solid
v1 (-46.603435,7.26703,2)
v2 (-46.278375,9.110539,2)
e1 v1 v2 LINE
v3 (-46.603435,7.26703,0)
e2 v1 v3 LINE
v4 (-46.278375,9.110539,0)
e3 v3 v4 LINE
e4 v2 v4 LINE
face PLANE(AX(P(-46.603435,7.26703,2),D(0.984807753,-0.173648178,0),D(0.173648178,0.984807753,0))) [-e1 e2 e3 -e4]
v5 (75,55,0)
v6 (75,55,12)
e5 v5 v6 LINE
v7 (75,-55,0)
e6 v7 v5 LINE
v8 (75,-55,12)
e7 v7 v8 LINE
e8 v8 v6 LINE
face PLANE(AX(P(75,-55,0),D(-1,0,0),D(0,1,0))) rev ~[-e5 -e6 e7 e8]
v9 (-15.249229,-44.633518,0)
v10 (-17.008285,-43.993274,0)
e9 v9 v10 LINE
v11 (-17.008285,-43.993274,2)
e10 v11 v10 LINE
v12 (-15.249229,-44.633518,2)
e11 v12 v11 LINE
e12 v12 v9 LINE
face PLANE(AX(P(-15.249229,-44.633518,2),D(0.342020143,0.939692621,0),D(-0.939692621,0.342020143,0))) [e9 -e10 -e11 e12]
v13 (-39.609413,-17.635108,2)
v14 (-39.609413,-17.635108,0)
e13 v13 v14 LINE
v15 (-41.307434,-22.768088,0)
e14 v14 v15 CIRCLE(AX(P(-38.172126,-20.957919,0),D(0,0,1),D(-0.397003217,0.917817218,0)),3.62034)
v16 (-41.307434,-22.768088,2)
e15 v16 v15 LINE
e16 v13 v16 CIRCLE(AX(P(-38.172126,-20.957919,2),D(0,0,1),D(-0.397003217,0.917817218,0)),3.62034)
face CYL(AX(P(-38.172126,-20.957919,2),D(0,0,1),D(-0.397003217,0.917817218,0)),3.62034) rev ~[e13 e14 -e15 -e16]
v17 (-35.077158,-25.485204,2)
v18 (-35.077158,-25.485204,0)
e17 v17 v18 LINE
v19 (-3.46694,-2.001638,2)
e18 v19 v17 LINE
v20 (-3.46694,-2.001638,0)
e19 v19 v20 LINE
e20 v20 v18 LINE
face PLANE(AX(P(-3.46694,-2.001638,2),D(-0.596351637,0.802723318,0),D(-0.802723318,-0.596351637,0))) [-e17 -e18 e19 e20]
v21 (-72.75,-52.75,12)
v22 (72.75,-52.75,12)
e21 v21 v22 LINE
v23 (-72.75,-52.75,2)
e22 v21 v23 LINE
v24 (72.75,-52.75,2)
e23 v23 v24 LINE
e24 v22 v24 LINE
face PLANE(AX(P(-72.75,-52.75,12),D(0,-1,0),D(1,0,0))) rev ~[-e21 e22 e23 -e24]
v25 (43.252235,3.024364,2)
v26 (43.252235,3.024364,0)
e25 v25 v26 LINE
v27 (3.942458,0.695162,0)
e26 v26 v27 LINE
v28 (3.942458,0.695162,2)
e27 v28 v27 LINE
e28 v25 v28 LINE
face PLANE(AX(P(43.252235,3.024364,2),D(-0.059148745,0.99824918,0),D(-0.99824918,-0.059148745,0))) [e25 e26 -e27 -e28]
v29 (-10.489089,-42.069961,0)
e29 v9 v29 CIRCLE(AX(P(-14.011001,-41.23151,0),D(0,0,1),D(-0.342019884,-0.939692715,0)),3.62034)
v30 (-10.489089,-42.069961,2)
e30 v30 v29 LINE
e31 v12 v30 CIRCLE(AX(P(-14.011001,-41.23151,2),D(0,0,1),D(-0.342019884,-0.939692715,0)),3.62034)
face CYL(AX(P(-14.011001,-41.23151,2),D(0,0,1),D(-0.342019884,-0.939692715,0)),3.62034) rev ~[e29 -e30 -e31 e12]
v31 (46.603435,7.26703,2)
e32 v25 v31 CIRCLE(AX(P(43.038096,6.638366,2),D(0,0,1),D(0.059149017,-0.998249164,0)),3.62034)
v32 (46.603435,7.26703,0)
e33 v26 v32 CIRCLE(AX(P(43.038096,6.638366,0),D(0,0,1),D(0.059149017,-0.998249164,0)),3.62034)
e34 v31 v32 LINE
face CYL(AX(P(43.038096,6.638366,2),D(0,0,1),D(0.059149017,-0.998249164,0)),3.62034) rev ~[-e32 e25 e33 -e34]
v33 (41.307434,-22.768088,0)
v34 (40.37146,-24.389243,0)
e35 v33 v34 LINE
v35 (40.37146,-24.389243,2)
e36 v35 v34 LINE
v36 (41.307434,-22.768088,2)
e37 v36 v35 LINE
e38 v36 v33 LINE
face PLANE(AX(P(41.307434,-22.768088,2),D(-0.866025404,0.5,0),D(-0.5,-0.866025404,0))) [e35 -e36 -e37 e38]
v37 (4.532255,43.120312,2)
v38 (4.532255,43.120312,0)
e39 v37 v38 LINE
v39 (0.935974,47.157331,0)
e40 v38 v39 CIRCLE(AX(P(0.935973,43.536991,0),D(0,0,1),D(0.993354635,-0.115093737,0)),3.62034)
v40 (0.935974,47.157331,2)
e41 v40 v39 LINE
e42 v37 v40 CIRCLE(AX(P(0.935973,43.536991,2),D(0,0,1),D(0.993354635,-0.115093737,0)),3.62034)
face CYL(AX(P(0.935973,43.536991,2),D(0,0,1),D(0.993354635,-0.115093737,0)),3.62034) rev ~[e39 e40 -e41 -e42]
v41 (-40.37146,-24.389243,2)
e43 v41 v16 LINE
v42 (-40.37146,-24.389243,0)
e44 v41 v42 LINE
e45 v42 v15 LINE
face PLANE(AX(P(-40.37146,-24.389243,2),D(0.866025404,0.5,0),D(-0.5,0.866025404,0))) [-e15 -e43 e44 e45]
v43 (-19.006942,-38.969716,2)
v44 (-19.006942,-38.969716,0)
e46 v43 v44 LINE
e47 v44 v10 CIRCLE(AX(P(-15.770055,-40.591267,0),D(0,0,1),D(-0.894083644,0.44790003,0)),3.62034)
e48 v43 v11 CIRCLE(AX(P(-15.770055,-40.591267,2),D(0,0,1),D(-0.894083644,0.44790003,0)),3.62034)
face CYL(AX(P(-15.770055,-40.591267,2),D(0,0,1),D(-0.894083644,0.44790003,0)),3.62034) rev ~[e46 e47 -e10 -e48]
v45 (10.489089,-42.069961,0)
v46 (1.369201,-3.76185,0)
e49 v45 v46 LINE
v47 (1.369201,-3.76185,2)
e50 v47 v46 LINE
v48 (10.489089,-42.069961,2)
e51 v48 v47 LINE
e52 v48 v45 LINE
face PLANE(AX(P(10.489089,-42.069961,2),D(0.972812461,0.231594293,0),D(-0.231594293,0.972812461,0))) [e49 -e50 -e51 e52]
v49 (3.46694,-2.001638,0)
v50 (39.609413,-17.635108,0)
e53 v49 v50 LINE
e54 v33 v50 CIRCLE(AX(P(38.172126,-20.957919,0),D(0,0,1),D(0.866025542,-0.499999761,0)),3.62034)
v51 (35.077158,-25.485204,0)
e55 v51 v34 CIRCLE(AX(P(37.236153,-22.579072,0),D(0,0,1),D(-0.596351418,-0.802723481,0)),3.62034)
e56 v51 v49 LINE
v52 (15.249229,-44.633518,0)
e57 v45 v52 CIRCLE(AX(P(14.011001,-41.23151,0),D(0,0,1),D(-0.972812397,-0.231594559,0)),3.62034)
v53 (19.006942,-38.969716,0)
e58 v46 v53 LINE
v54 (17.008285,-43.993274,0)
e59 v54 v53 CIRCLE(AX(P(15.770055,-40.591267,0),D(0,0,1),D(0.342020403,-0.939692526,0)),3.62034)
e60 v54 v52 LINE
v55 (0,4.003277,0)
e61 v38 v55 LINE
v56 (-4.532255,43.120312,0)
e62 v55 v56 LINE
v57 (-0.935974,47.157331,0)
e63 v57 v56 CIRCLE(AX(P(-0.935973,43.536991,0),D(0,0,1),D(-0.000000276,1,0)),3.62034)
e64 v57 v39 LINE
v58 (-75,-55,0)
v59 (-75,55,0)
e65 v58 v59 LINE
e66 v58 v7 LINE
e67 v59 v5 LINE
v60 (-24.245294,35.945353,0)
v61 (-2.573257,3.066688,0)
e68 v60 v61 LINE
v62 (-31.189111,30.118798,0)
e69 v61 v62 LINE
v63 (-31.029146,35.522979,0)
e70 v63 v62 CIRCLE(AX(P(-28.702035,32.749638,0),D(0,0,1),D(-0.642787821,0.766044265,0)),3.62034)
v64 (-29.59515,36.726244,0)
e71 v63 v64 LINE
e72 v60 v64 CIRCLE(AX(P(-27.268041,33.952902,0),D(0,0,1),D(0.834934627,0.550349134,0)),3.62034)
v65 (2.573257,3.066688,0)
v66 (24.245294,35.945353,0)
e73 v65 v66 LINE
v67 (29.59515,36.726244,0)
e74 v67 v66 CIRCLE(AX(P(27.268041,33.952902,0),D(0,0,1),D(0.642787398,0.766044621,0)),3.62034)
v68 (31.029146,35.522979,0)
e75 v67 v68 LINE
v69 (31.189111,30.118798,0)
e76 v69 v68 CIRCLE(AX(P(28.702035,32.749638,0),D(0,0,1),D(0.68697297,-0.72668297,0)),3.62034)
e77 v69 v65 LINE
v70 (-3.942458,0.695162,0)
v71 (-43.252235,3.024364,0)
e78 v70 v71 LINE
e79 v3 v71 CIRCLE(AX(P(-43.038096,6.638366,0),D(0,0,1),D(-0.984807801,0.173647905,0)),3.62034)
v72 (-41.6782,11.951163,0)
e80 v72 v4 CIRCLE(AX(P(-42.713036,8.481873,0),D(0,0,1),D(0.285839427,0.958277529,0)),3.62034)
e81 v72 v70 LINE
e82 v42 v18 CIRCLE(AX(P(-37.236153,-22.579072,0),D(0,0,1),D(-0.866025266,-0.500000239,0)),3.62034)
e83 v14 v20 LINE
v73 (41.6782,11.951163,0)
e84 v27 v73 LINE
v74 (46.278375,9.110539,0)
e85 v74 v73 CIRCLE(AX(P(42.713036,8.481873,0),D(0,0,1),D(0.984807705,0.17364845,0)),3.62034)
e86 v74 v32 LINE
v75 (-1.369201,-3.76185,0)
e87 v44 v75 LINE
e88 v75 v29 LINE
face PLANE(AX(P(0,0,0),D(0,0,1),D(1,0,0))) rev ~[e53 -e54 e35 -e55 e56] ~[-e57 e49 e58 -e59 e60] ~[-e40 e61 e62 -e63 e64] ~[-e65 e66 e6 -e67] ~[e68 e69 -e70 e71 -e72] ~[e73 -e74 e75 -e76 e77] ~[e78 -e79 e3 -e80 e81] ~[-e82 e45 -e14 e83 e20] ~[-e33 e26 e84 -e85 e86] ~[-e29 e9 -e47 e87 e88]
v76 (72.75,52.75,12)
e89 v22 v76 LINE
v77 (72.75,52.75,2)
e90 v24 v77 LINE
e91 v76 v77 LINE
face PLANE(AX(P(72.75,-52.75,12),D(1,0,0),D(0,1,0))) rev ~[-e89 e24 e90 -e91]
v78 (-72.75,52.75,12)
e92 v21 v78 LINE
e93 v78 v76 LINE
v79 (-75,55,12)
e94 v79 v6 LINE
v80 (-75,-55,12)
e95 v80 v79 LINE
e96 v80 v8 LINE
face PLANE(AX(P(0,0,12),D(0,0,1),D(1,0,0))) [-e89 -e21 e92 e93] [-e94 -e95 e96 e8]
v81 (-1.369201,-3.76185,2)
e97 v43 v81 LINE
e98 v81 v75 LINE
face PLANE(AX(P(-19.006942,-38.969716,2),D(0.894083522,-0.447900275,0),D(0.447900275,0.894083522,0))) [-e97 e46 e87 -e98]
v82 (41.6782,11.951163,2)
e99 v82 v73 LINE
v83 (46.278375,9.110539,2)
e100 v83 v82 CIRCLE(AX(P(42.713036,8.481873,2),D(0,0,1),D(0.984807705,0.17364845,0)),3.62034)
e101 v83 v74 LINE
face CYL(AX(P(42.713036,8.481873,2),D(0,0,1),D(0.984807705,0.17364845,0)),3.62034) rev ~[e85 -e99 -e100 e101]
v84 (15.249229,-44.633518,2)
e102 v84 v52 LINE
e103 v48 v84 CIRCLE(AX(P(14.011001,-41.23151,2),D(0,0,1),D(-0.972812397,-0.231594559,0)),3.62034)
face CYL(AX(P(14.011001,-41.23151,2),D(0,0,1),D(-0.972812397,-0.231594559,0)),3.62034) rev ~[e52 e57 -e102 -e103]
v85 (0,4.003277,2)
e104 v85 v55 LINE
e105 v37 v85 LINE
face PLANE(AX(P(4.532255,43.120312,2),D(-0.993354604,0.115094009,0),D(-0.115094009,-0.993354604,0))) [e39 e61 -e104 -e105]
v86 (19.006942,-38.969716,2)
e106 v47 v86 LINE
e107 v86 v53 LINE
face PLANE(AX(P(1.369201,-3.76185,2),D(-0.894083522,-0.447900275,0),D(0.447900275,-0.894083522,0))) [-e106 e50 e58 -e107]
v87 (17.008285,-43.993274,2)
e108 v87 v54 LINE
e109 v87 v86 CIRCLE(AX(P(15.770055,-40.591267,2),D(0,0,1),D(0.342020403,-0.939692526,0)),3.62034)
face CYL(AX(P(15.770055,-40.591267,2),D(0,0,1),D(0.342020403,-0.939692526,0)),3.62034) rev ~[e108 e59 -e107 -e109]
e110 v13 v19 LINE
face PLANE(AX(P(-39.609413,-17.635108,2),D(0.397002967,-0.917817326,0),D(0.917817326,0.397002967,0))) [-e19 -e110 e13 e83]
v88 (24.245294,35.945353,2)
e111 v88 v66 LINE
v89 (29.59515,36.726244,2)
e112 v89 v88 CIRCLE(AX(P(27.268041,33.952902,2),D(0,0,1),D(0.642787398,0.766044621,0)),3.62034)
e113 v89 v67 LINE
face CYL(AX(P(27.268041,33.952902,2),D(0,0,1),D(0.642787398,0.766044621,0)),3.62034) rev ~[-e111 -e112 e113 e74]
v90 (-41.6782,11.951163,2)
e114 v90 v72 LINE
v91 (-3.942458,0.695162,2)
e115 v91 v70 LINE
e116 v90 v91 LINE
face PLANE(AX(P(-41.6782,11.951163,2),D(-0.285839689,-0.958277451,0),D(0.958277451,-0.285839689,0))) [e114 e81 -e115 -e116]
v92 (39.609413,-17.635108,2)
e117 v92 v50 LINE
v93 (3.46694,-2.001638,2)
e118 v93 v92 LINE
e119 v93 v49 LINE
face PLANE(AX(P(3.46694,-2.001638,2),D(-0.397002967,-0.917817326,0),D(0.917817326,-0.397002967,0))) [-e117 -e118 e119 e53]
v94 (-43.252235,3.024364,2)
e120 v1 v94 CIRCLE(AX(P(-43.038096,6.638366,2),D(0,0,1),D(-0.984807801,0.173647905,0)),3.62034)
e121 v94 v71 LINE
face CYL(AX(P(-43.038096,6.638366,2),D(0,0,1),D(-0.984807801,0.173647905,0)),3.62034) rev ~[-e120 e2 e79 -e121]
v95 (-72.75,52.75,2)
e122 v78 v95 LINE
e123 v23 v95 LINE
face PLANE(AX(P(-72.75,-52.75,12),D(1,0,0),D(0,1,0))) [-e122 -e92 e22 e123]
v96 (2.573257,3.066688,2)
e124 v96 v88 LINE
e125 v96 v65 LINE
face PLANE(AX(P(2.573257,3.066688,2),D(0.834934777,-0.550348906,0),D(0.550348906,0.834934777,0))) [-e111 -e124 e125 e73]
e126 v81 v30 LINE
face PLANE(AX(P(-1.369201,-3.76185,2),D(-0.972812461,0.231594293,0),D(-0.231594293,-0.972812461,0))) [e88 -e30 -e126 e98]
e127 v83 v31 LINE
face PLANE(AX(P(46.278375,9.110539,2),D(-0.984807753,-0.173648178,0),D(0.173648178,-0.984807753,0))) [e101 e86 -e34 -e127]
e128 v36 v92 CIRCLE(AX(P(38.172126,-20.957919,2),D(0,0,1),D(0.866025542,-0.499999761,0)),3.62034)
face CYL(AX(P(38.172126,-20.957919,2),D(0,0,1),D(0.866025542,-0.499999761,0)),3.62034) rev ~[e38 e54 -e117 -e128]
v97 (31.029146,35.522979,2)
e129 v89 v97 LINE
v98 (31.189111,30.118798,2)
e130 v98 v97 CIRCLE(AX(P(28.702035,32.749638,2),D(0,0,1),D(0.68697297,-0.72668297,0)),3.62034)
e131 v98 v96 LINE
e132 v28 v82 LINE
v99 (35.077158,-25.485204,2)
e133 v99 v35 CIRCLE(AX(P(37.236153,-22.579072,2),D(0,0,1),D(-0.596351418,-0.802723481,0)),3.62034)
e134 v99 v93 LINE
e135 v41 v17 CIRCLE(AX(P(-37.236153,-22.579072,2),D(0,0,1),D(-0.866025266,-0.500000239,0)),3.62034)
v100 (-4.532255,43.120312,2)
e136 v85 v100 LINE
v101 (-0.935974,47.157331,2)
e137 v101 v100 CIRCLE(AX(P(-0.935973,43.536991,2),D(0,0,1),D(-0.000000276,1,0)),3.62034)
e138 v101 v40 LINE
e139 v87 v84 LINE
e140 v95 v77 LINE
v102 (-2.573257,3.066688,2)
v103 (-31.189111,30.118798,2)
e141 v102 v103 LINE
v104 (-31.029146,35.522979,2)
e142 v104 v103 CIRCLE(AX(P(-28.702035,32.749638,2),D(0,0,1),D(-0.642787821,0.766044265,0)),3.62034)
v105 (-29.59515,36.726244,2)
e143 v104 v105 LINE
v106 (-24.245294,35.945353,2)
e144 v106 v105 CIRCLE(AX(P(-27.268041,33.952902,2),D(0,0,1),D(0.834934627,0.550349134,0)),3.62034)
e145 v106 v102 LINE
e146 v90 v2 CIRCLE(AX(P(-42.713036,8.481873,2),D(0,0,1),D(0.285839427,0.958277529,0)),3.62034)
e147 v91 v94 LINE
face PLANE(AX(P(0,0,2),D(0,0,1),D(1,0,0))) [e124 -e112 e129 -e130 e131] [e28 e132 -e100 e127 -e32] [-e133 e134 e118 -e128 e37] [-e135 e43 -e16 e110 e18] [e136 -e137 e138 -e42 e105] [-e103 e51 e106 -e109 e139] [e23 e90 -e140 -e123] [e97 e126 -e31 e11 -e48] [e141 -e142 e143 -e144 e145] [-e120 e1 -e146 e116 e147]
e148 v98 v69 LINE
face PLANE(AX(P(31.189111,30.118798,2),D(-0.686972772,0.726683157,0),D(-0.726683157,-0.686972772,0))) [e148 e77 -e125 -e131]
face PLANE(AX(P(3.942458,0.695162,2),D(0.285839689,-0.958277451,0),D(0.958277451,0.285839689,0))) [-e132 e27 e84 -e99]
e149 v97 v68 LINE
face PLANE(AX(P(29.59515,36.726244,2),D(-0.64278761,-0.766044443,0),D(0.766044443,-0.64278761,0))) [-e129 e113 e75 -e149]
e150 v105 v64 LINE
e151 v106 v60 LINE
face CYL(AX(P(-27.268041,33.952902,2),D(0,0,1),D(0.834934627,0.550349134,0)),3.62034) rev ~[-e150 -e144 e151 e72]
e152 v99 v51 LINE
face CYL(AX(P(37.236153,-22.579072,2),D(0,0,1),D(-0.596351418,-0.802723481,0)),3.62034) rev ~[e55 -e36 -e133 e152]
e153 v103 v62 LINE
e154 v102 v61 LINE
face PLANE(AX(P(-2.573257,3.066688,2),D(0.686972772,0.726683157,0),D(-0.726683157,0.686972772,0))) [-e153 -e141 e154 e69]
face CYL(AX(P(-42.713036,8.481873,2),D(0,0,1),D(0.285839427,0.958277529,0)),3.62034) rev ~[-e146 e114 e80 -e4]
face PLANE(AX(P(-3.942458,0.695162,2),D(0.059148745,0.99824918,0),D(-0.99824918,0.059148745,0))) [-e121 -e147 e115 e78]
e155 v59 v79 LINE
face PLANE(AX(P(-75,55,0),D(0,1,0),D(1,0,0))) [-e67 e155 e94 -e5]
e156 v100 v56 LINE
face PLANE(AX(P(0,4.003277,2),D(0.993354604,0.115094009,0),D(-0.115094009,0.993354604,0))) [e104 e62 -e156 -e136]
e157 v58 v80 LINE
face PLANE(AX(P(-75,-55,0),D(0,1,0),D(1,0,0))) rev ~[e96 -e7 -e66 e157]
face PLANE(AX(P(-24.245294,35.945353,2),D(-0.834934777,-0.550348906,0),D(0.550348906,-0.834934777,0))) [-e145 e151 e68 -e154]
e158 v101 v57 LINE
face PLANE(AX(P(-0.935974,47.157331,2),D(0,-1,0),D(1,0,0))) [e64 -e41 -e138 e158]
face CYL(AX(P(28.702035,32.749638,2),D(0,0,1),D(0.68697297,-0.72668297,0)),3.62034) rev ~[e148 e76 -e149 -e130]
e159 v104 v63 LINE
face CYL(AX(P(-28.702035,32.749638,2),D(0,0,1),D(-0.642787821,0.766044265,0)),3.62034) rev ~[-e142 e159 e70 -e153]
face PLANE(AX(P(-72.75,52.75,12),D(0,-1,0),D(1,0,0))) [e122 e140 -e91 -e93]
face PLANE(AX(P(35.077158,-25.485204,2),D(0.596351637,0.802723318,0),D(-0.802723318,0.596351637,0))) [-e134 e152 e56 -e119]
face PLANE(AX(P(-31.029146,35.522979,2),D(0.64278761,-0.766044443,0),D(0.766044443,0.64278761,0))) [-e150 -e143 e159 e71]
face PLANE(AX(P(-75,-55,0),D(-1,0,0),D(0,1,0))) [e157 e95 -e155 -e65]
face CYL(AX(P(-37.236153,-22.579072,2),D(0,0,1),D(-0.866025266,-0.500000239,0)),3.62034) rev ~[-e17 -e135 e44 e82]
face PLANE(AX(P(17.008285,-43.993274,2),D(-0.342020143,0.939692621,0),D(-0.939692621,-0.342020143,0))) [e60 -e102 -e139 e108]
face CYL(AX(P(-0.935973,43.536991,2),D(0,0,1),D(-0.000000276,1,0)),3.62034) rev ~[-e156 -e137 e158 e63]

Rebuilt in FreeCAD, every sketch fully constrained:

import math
import FreeCAD as App
import Part
import Sketcher
from FreeCAD import Vector
Q = App.Units.Quantity

doc = App.newDocument("Part")
params = doc.addObject("Spreadsheet::Sheet", "Params")
for row, (alias, value) in enumerate([
    ("sketch1_width", "150 mm"),
    ("sketch1_height", "110 mm"),
    ("pad1_length", "12 mm"),
    ("sketch2_width", "145.5 mm"),
    ("sketch2_height", "105.5 mm"),
    ("pocket1_length", "10 mm"),
    ("pocket2_length", "5 mm"),
], start=1):
    params.set(f"A{row}", alias)
    params.set(f"B{row}", "=" + value)
    params.setAlias(f"B{row}", alias)

body = doc.addObject("PartDesign::Body", "Body")

# Sketch on XY plane
sketch1 = doc.addObject("Sketcher::SketchObject", "Sketch")
body.addObject(sketch1)
sketch1.AttachmentSupport = (doc.XY_Plane, [""])
sketch1.MapMode = "FlatFace"
sketch1.addGeometry(Part.LineSegment(Vector(-75, 55, 0), Vector(-75, -55, 0)), False)
sketch1.addGeometry(Part.LineSegment(Vector(-75, -55, 0), Vector(75, -55, 0)), False)
sketch1.addGeometry(Part.LineSegment(Vector(75, -55, 0), Vector(75, 55, 0)), False)
sketch1.addGeometry(Part.LineSegment(Vector(75, 55, 0), Vector(-75, 55, 0)), False)
sketch1.addConstraint(Sketcher.Constraint("Coincident", 0, 2, 1, 1))
sketch1.addConstraint(Sketcher.Constraint("Coincident", 1, 2, 2, 1))
sketch1.addConstraint(Sketcher.Constraint("Coincident", 2, 2, 3, 1))
sketch1.addConstraint(Sketcher.Constraint("Coincident", 3, 2, 0, 1))
sketch1.addConstraint(Sketcher.Constraint("Vertical", 0))
sketch1.addConstraint(Sketcher.Constraint("Horizontal", 1))
sketch1.addConstraint(Sketcher.Constraint("Vertical", 2))
sketch1.addConstraint(Sketcher.Constraint("Horizontal", 3))
sketch1.addConstraint(Sketcher.Constraint("Symmetric", 0, 2, 2, 2, -1, 1))
sketch1.addConstraint(Sketcher.Constraint("DistanceX", 1, 1, 1, 2, Q("150 mm")))
sketch1.addConstraint(Sketcher.Constraint("DistanceY", 0, 2, 0, 1, Q("110 mm")))
sketch1.setExpression("Constraints[9]", "Params.sketch1_width")
sketch1.setExpression("Constraints[10]", "Params.sketch1_height")
pad1 = doc.addObject("PartDesign::Pad", "Pad")
body.addObject(pad1)
pad1.Profile = sketch1
pad1.setExpression("Length", "Params.pad1_length")

# Sketch on XY plane
sketch2 = doc.addObject("Sketcher::SketchObject", "Sketch001")
body.addObject(sketch2)
sketch2.AttachmentSupport = (doc.XY_Plane, [""])
sketch2.MapMode = "FlatFace"
sketch2.AttachmentOffset = App.Placement(Vector(0, 0, 12), App.Rotation())
sketch2.addGeometry(Part.LineSegment(Vector(-72.75, 52.75, 0), Vector(-72.75, -52.75, 0)), False)
sketch2.addGeometry(Part.LineSegment(Vector(-72.75, -52.75, 0), Vector(72.75, -52.75, 0)), False)
sketch2.addGeometry(Part.LineSegment(Vector(72.75, -52.75, 0), Vector(72.75, 52.75, 0)), False)
sketch2.addGeometry(Part.LineSegment(Vector(72.75, 52.75, 0), Vector(-72.75, 52.75, 0)), False)
sketch2.addConstraint(Sketcher.Constraint("Coincident", 0, 2, 1, 1))
sketch2.addConstraint(Sketcher.Constraint("Coincident", 1, 2, 2, 1))
sketch2.addConstraint(Sketcher.Constraint("Coincident", 2, 2, 3, 1))
sketch2.addConstraint(Sketcher.Constraint("Coincident", 3, 2, 0, 1))
sketch2.addConstraint(Sketcher.Constraint("Vertical", 0))
sketch2.addConstraint(Sketcher.Constraint("Horizontal", 1))
sketch2.addConstraint(Sketcher.Constraint("Vertical", 2))
sketch2.addConstraint(Sketcher.Constraint("Horizontal", 3))
sketch2.addConstraint(Sketcher.Constraint("Symmetric", 0, 2, 2, 2, -1, 1))
sketch2.addConstraint(Sketcher.Constraint("DistanceX", 1, 1, 1, 2, Q("145.5 mm")))
sketch2.addConstraint(Sketcher.Constraint("DistanceY", 0, 2, 0, 1, Q("105.5 mm")))
sketch2.setExpression("Constraints[9]", "Params.sketch2_width")
sketch2.setExpression("Constraints[10]", "Params.sketch2_height")
pocket1 = doc.addObject("PartDesign::Pocket", "Pocket")
body.addObject(pocket1)
pocket1.Profile = sketch2
pocket1.setExpression("Length", "Params.pocket1_length")

# Sketch on XY plane
sketch3 = doc.addObject("Sketcher::SketchObject", "Sketch002")
body.addObject(sketch3)
sketch3.AttachmentSupport = (doc.XY_Plane, [""])
sketch3.MapMode = "FlatFace"
sketch3.AttachmentOffset = App.Placement(Vector(0, 0, 2), App.Rotation())
sketch3.addGeometry(Part.LineSegment(Vector(0.935974, 47.157331, 0), Vector(-0.935974, 47.157331, 0)), False)
sketch3.addGeometry(Part.ArcOfCircle(Part.Circle(Vector(-0.935973, 43.536991, 0), Vector(0, 0, 1), 3.62034), math.radians(90.000016), math.radians(186.609032)), False)
sketch3.addGeometry(Part.LineSegment(Vector(-4.532255, 43.120312, 0), Vector(0, 4.003277, 0)), False)
sketch3.addGeometry(Part.LineSegment(Vector(0, 4.003277, 0), Vector(4.532255, 43.120312, 0)), False)
sketch3.addGeometry(Part.ArcOfCircle(Part.Circle(Vector(0.935973, 43.536991, 0), Vector(0, 0, 1), 3.62034), math.radians(-6.609032), math.radians(89.999984)), False)
sketch3.addConstraint(Sketcher.Constraint("Coincident", 0, 2, 1, 1))
sketch3.addConstraint(Sketcher.Constraint("Coincident", 1, 2, 2, 1))
sketch3.addConstraint(Sketcher.Constraint("Coincident", 2, 2, 3, 1))
sketch3.addConstraint(Sketcher.Constraint("Coincident", 3, 2, 4, 1))
sketch3.addConstraint(Sketcher.Constraint("Coincident", 4, 2, 0, 1))
sketch3.addConstraint(Sketcher.Constraint("Horizontal", 0))
sketch3.addConstraint(Sketcher.Constraint("PointOnObject", 2, 2, -2))
sketch3.addConstraint(Sketcher.Constraint("Radius", 1, Q("3.62034 mm")))
sketch3.addConstraint(Sketcher.Constraint("Radius", 4, Q("3.62034 mm")))
sketch3.addConstraint(Sketcher.Constraint("DistanceX", 0, 2, 0, 1, Q("1.871948 mm")))
sketch3.addConstraint(Sketcher.Constraint("DistanceY", -1, 1, 1, 3, Q("43.536991 mm")))
sketch3.addConstraint(Sketcher.Constraint("DistanceY", -1, 1, 3, 2, Q("43.120312 mm")))
sketch3.addConstraint(Sketcher.Constraint("DistanceY", 1, 2, 1, 3, Q("0.416679 mm")))
sketch3.addConstraint(Sketcher.Constraint("DistanceX", 1, 2, 0, 2, Q("3.596281 mm")))
sketch3.addConstraint(Sketcher.Constraint("DistanceX", 0, 2, 3, 2, Q("5.468229 mm")))
sketch3.addConstraint(Sketcher.Constraint("Distance", 2, Q("39.378722 mm")))
sketch3.addConstraint(Sketcher.Constraint("Distance", 3, Q("39.378722 mm")))
pocket2 = doc.addObject("PartDesign::Pocket", "Pocket001")
body.addObject(pocket2)
pocket2.Profile = sketch3
pocket2.setExpression("Length", "Params.pocket2_length")
doc.recompute()

polarpattern = doc.addObject("PartDesign::PolarPattern", "PolarPattern")
body.addObject(polarpattern)
polarpattern.Originals = [pocket2]
polarpattern.Axis = (doc.Z_Axis, [""])
polarpattern.Angle = 360
polarpattern.Occurrences = 9
body.Tip = polarpattern

doc.recompute()
